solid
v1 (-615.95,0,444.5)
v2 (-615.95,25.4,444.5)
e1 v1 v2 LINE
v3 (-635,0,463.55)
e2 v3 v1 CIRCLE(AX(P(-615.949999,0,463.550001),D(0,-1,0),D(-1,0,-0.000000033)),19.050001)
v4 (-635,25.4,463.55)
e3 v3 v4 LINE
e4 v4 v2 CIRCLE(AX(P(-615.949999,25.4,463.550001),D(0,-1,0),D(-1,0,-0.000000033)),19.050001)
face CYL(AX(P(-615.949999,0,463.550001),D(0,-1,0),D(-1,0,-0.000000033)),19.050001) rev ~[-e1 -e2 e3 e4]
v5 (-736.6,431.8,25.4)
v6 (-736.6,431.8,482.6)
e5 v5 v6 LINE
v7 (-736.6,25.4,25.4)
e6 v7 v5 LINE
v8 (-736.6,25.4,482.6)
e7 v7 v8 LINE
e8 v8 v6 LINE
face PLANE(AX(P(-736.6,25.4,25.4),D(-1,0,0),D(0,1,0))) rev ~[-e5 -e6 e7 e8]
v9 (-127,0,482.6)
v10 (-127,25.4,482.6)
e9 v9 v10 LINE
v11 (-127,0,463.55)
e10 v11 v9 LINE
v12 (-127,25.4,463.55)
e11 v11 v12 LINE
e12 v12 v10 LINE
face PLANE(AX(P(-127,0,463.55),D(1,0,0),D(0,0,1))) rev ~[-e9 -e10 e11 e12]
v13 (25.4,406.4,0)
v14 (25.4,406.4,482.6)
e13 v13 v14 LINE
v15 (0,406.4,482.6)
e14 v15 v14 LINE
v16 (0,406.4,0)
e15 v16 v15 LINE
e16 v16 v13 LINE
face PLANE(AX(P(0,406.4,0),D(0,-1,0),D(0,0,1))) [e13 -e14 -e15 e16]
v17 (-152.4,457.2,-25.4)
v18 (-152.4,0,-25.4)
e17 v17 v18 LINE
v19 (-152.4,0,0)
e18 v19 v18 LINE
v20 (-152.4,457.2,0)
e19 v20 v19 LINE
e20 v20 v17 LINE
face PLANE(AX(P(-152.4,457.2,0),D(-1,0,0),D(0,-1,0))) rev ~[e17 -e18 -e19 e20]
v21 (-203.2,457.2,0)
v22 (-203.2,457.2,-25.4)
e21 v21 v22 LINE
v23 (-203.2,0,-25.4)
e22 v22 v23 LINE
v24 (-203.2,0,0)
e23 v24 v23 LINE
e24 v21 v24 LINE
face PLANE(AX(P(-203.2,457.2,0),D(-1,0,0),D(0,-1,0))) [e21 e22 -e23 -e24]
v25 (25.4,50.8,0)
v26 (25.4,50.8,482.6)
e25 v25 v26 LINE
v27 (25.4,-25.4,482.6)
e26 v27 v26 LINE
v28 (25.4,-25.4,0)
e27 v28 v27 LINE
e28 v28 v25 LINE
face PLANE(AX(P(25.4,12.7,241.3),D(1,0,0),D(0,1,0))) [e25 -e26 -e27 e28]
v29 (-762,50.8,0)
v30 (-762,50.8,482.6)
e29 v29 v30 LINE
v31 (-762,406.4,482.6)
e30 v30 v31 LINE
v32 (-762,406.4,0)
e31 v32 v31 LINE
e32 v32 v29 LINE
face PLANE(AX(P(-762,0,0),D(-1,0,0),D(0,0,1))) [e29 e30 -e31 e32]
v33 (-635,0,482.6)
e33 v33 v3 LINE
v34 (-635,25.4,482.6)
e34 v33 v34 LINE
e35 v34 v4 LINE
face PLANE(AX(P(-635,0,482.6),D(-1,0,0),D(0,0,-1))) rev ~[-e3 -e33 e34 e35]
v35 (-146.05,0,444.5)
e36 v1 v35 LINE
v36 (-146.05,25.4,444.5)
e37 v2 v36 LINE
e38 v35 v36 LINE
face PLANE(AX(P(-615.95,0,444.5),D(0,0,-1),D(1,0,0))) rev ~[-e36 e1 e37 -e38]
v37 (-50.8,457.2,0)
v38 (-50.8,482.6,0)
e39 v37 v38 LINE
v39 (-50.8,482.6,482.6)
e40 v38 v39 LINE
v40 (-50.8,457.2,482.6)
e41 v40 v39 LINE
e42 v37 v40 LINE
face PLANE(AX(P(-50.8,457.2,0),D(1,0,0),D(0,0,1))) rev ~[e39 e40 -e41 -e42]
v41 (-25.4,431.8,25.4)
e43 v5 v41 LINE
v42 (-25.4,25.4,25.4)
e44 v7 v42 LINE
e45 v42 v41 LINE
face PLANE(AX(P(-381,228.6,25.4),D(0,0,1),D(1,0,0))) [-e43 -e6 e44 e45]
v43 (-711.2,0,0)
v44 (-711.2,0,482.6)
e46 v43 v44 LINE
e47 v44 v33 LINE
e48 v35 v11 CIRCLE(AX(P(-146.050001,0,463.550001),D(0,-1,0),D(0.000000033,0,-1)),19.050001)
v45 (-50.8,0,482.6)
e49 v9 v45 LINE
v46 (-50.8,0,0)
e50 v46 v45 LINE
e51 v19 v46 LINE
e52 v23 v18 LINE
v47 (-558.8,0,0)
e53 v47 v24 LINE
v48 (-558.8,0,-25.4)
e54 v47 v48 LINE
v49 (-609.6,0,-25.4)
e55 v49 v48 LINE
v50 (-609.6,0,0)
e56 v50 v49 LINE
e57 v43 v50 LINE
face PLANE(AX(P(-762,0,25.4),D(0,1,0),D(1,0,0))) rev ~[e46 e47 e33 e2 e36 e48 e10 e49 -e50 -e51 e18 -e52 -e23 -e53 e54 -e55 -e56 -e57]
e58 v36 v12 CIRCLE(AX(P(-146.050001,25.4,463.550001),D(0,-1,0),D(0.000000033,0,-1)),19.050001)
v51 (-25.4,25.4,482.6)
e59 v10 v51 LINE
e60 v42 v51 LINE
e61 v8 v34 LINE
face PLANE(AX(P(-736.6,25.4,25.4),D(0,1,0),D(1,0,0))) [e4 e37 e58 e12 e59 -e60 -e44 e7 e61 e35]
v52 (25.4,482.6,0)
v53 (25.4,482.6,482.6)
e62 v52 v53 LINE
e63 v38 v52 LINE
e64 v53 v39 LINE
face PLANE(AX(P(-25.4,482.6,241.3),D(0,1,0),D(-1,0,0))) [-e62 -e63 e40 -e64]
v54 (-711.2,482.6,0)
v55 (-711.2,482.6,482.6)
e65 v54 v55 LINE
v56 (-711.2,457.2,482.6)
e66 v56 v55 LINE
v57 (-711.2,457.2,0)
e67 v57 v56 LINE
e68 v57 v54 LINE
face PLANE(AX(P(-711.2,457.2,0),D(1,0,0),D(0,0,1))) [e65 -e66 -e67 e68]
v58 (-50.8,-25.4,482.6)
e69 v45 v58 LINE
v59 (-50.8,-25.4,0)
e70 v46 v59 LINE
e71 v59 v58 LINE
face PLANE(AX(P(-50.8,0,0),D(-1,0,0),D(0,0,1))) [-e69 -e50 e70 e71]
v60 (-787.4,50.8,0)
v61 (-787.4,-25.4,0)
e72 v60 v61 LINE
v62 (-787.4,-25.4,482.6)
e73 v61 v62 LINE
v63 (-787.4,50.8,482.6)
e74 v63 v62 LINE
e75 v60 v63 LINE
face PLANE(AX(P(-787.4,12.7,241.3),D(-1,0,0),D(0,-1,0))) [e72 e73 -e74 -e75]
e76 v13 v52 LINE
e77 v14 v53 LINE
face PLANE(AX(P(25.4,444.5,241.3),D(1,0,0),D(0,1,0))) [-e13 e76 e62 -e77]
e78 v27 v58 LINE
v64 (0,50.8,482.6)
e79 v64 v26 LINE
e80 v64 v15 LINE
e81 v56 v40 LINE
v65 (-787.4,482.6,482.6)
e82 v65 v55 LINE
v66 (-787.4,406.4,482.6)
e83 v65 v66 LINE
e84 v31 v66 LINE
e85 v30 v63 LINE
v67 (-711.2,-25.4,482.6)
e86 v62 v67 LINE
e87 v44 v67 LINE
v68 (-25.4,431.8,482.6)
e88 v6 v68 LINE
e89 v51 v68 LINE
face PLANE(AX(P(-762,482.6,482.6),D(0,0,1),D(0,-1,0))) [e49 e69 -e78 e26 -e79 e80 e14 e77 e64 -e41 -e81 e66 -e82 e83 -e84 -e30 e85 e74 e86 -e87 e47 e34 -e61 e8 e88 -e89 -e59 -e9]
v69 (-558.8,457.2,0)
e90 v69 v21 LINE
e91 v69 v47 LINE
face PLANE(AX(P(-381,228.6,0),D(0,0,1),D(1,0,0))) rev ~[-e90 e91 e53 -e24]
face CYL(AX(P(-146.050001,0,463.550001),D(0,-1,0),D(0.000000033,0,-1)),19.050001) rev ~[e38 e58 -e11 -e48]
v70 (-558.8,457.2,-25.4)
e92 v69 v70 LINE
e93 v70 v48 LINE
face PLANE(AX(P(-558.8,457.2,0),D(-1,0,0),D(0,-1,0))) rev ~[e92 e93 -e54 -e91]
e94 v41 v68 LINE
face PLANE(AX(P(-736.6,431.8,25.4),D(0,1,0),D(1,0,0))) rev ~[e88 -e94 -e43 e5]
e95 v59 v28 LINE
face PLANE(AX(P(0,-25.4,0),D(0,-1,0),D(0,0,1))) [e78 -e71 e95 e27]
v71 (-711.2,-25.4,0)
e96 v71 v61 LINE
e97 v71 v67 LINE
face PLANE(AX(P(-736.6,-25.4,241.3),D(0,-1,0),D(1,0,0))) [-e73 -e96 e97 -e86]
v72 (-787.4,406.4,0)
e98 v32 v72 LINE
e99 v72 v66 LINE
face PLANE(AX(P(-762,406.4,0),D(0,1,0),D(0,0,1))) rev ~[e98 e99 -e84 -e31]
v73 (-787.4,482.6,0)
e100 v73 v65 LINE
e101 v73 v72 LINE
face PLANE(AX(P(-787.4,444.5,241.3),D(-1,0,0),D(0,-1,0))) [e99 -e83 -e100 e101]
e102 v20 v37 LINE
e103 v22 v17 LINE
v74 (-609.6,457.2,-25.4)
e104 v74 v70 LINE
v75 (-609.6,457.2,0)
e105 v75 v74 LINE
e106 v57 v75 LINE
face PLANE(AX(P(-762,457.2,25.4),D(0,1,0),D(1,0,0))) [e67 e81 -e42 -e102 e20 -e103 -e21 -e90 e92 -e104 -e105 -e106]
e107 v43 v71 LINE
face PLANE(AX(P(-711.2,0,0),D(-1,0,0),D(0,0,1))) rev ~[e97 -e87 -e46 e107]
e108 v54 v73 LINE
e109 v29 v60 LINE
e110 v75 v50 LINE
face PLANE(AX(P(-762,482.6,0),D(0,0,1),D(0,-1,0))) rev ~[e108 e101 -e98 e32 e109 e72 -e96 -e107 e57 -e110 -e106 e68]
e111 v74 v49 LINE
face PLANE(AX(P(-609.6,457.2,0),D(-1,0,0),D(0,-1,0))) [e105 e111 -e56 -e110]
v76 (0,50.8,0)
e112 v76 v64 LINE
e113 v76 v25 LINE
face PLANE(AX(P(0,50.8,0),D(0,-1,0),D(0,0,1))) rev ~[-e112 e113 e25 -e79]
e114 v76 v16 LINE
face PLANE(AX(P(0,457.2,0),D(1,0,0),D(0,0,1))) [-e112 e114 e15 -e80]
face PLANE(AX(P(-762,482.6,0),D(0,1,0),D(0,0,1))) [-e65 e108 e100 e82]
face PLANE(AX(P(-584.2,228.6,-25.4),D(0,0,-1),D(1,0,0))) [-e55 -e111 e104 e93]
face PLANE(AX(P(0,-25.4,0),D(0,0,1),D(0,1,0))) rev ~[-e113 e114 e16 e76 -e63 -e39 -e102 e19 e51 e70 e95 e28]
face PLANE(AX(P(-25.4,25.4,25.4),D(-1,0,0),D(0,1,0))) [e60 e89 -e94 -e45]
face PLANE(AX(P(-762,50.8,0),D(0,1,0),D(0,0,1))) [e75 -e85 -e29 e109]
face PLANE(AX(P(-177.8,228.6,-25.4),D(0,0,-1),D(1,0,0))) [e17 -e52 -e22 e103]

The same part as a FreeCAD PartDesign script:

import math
import FreeCAD as App
import Part
import Sketcher
Q = App.Units.Quantity


def add_polygon(sketch, points):
    """Adds a closed chain of lines whose ends are joined by coincident constraints."""
    first, n = sketch.GeometryCount, len(points)
    for a, b in zip(points, points[1:] + points[:1]):
        sketch.addGeometry(Part.LineSegment(App.Vector(*a, 0), App.Vector(*b, 0)), False)
    for i in range(n):
        sketch.addConstraint(Sketcher.Constraint("Coincident", first + i, 2, first + (i + 1) % n, 1))

doc = App.newDocument("Part")
body = doc.addObject("PartDesign::Body", "Body")

sketch1 = doc.addObject("Sketcher::SketchObject", "Sketch")
body.addObject(sketch1)
sketch1.AttachmentSupport = (doc.XY_Plane, [""])
sketch1.MapMode = "FlatFace"
add_polygon(sketch1, [(-762, 457.2), (-762, 0), (0, 0), (0, 457.2)])
sketch1.addConstraint(Sketcher.Constraint("Vertical", 0))
sketch1.addConstraint(Sketcher.Constraint("Horizontal", 1))
sketch1.addConstraint(Sketcher.Constraint("Vertical", 2))
sketch1.addConstraint(Sketcher.Constraint("Horizontal", 3))
sketch1.addConstraint(Sketcher.Constraint("Coincident", 1, 2, -1, 1))
sketch1.addConstraint(Sketcher.Constraint("DistanceX", 1, 1, 1, 2, Q("30 in")))
sketch1.addConstraint(Sketcher.Constraint("DistanceY", 0, 2, 0, 1, Q("18 in")))
pad1 = doc.addObject("PartDesign::Pad", "Pad")
body.addObject(pad1)
pad1.Profile = sketch1
pad1.Length = Q("1 in")

sketch2 = doc.addObject("Sketcher::SketchObject", "Sketch001")
body.addObject(sketch2)
sketch2.AttachmentSupport = (doc.XY_Plane, [""])
sketch2.MapMode = "FlatFace"
add_polygon(sketch2, [(-609.6, 0), (-609.6, 457.2), (-558.8, 457.2), (-558.8, 0)])
add_polygon(sketch2, [(-203.2, 0), (-203.2, 457.2), (-152.4, 457.2), (-152.4, 0)])
sketch2.addConstraint(Sketcher.Constraint("Vertical", 0))
sketch2.addConstraint(Sketcher.Constraint("Horizontal", 1))
sketch2.addConstraint(Sketcher.Constraint("Vertical", 2))
sketch2.addConstraint(Sketcher.Constraint("Horizontal", 3))
sketch2.addConstraint(Sketcher.Constraint("Vertical", 4))
sketch2.addConstraint(Sketcher.Constraint("Horizontal", 5))
sketch2.addConstraint(Sketcher.Constraint("Vertical", 6))
sketch2.addConstraint(Sketcher.Constraint("Horizontal", 7))
sketch2.addConstraint(Sketcher.Constraint("PointOnObject", 2, 2, -1))
sketch2.addConstraint(Sketcher.Constraint("PointOnObject", 6, 2, -1))
sketch2.addConstraint(Sketcher.Constraint("Horizontal", 1, 2, 4, 2))
sketch2.addConstraint(Sketcher.Constraint("Equal", 3, 5))
sketch2.addConstraint(Sketcher.Constraint("DistanceX", 1, 1, 1, 2, Q("2 in")))
sketch2.addConstraint(Sketcher.Constraint("DistanceY", 0, 1, 0, 2, Q("18 in")))
sketch2.addConstraint(Sketcher.Constraint("DistanceX", 0, 2, -1, 1, Q("24 in")))
sketch2.addConstraint(Sketcher.Constraint("DistanceX", 4, 2, -1, 1, Q("8 in")))
pad2 = doc.addObject("PartDesign::Pad", "Pad001")
body.addObject(pad2)
pad2.Profile = sketch2
pad2.Length = Q("1 in")
pad2.Reversed = True

sketch3 = doc.addObject("Sketcher::SketchObject", "Sketch002")
body.addObject(sketch3)
sketch3.AttachmentSupport = (doc.XY_Plane, [""])
sketch3.MapMode = "FlatFace"
sketch3.AttachmentOffset = App.Placement(App.Vector(0, 0, 1 * 25.4), App.Rotation())
add_polygon(sketch3, [(-762, 457.2), (-762, 0), (0, 0), (0, 457.2)])
add_polygon(sketch3, [(-25.4, 25.4), (-736.6, 25.4), (-736.6, 431.8), (-25.4, 431.8)])
sketch3.addConstraint(Sketcher.Constraint("Vertical", 0))
sketch3.addConstraint(Sketcher.Constraint("Horizontal", 1))
sketch3.addConstraint(Sketcher.Constraint("Vertical", 2))
sketch3.addConstraint(Sketcher.Constraint("Horizontal", 3))
sketch3.addConstraint(Sketcher.Constraint("Horizontal", 4))
sketch3.addConstraint(Sketcher.Constraint("Vertical", 5))
sketch3.addConstraint(Sketcher.Constraint("Horizontal", 6))
sketch3.addConstraint(Sketcher.Constraint("Vertical", 7))
sketch3.addConstraint(Sketcher.Constraint("Coincident", 1, 2, -1, 1))
sketch3.addConstraint(Sketcher.Constraint("DistanceX", 1, 1, 1, 2, Q("30 in")))
sketch3.addConstraint(Sketcher.Constraint("DistanceX", 4, 2, 4, 1, Q("28 in")))
sketch3.addConstraint(Sketcher.Constraint("DistanceY", 0, 2, 0, 1, Q("18 in")))
sketch3.addConstraint(Sketcher.Constraint("DistanceY", 5, 1, 5, 2, Q("16 in")))
sketch3.addConstraint(Sketcher.Constraint("DistanceX", 4, 2, -1, 1, Q("29 in")))
sketch3.addConstraint(Sketcher.Constraint("DistanceY", -1, 1, 4, 2, Q("1 in")))
pad3 = doc.addObject("PartDesign::Pad", "Pad002")
body.addObject(pad3)
pad3.Profile = sketch3
pad3.Length = Q("18 in")

sketch4 = doc.addObject("Sketcher::SketchObject", "Sketch003")
body.addObject(sketch4)
sketch4.AttachmentSupport = (doc.XZ_Plane, [""])
sketch4.MapMode = "FlatFace"
sketch4.AttachmentOffset = App.Placement(App.Vector(0, 0, -18 * 25.4), App.Rotation())
add_polygon(sketch4, [(0, 482.6), (0, 0), (-50.8, 0), (-50.8, 482.6)])
add_polygon(sketch4, [(-711.2, 482.6), (-711.2, 0), (-762, 0), (-762, 482.6)])
sketch4.addConstraint(Sketcher.Constraint("Vertical", 0))
sketch4.addConstraint(Sketcher.Constraint("Horizontal", 1))
sketch4.addConstraint(Sketcher.Constraint("Vertical", 2))
sketch4.addConstraint(Sketcher.Constraint("Horizontal", 3))
sketch4.addConstraint(Sketcher.Constraint("Vertical", 4))
sketch4.addConstraint(Sketcher.Constraint("Horizontal", 5))
sketch4.addConstraint(Sketcher.Constraint("Vertical", 6))
sketch4.addConstraint(Sketcher.Constraint("Horizontal", 7))
sketch4.addConstraint(Sketcher.Constraint("Coincident", 0, 2, -1, 1))
sketch4.addConstraint(Sketcher.Constraint("PointOnObject", 4, 2, -1))
sketch4.addConstraint(Sketcher.Constraint("Horizontal", 3, 2, 6, 2))
sketch4.addConstraint(Sketcher.Constraint("Equal", 3, 5))
sketch4.addConstraint(Sketcher.Constraint("DistanceX", 1, 2, 1, 1, Q("2 in")))
sketch4.addConstraint(Sketcher.Constraint("DistanceY", 0, 2, 0, 1, Q("19 in")))
sketch4.addConstraint(Sketcher.Constraint("DistanceX", 4, 2, -1, 1, Q("28 in")))
pad4 = doc.addObject("PartDesign::Pad", "Pad003")
body.addObject(pad4)
pad4.Profile = sketch4
pad4.Length = Q("1 in")
pad4.Reversed = True

sketch5 = doc.addObject("Sketcher::SketchObject", "Sketch004")
body.addObject(sketch5)
sketch5.AttachmentSupport = (doc.XZ_Plane, [""])
sketch5.MapMode = "FlatFace"
add_polygon(sketch5, [(-762, 482.6), (-762, 0), (-711.2, 0), (-711.2, 482.6)])
add_polygon(sketch5, [(-50.8, 482.6), (-50.8, 0), (0, 0), (0, 482.6)])
sketch5.addConstraint(Sketcher.Constraint("Vertical", 0))
sketch5.addConstraint(Sketcher.Constraint("Horizontal", 1))
sketch5.addConstraint(Sketcher.Constraint("Vertical", 2))
sketch5.addConstraint(Sketcher.Constraint("Horizontal", 3))
sketch5.addConstraint(Sketcher.Constraint("Vertical", 4))
sketch5.addConstraint(Sketcher.Constraint("Horizontal", 5))
sketch5.addConstraint(Sketcher.Constraint("Vertical", 6))
sketch5.addConstraint(Sketcher.Constraint("Horizontal", 7))
sketch5.addConstraint(Sketcher.Constraint("Coincident", 5, 2, -1, 1))
sketch5.addConstraint(Sketcher.Constraint("PointOnObject", 0, 2, -1))
sketch5.addConstraint(Sketcher.Constraint("Horizontal", 3, 2, 6, 2))
sketch5.addConstraint(Sketcher.Constraint("Equal", 3, 5))
sketch5.addConstraint(Sketcher.Constraint("DistanceX", 1, 1, 1, 2, Q("2 in")))
sketch5.addConstraint(Sketcher.Constraint("DistanceY", 0, 2, 0, 1, Q("19 in")))
sketch5.addConstraint(Sketcher.Constraint("DistanceX", 0, 2, -1, 1, Q("30 in")))
pad5 = doc.addObject("PartDesign::Pad", "Pad004")
body.addObject(pad5)
pad5.Profile = sketch5
pad5.Length = Q("1 in")

sketch6 = doc.addObject("Sketcher::SketchObject", "Sketch005")
body.addObject(sketch6)
sketch6.AttachmentSupport = (doc.YZ_Plane, [""])
sketch6.MapMode = "FlatFace"
add_polygon(sketch6, [(-25.4, 482.6), (-25.4, 0), (50.8, 0), (50.8, 482.6)])
add_polygon(sketch6, [(406.4, 482.6), (406.4, 0), (482.6, 0), (482.6, 482.6)])
sketch6.addConstraint(Sketcher.Constraint("Vertical", 0))
sketch6.addConstraint(Sketcher.Constraint("Horizontal", 1))
sketch6.addConstraint(Sketcher.Constraint("Vertical", 2))
sketch6.addConstraint(Sketcher.Constraint("Horizontal", 3))
sketch6.addConstraint(Sketcher.Constraint("Vertical", 4))
sketch6.addConstraint(Sketcher.Constraint("Horizontal", 5))
sketch6.addConstraint(Sketcher.Constraint("Vertical", 6))
sketch6.addConstraint(Sketcher.Constraint("Horizontal", 7))
sketch6.addConstraint(Sketcher.Constraint("PointOnObject", 0, 2, -1))
sketch6.addConstraint(Sketcher.Constraint("PointOnObject", 4, 2, -1))
sketch6.addConstraint(Sketcher.Constraint("Horizontal", 3, 2, 6, 2))
sketch6.addConstraint(Sketcher.Constraint("Equal", 3, 5))
sketch6.addConstraint(Sketcher.Constraint("DistanceX", 1, 1, 1, 2, Q("3 in")))
sketch6.addConstraint(Sketcher.Constraint("DistanceY", 0, 2, 0, 1, Q("19 in")))
sketch6.addConstraint(Sketcher.Constraint("DistanceX", 0, 2, -1, 1, Q("1 in")))
sketch6.addConstraint(Sketcher.Constraint("DistanceX", -1, 1, 4, 2, Q("16 in")))
pad6 = doc.addObject("PartDesign::Pad", "Pad005")
body.addObject(pad6)
pad6.Profile = sketch6
pad6.Length = Q("1 in")

sketch7 = doc.addObject("Sketcher::SketchObject", "Sketch006")
body.addObject(sketch7)
sketch7.AttachmentSupport = (doc.YZ_Plane, [""])
sketch7.MapMode = "FlatFace"
sketch7.AttachmentOffset = App.Placement(App.Vector(0, 0, -30 * 25.4), App.Rotation())
add_polygon(sketch7, [(482.6, 482.6), (482.6, 0), (406.4, 0), (406.4, 482.6)])
add_polygon(sketch7, [(50.8, 482.6), (50.8, 0), (-25.4, 0), (-25.4, 482.6)])
sketch7.addConstraint(Sketcher.Constraint("Vertical", 0))
sketch7.addConstraint(Sketcher.Constraint("Horizontal", 1))
sketch7.addConstraint(Sketcher.Constraint("Vertical", 2))
sketch7.addConstraint(Sketcher.Constraint("Horizontal", 3))
sketch7.addConstraint(Sketcher.Constraint("Vertical", 4))
sketch7.addConstraint(Sketcher.Constraint("Horizontal", 5))
sketch7.addConstraint(Sketcher.Constraint("Vertical", 6))
sketch7.addConstraint(Sketcher.Constraint("Horizontal", 7))
sketch7.addConstraint(Sketcher.Constraint("PointOnObject", 0, 2, -1))
sketch7.addConstraint(Sketcher.Constraint("PointOnObject", 4, 2, -1))
sketch7.addConstraint(Sketcher.Constraint("Horizontal", 3, 2, 6, 2))
sketch7.addConstraint(Sketcher.Constraint("Equal", 3, 5))
sketch7.addConstraint(Sketcher.Constraint("DistanceX", 1, 2, 1, 1, Q("3 in")))
sketch7.addConstraint(Sketcher.Constraint("DistanceY", 0, 2, 0, 1, Q("19 in")))
sketch7.addConstraint(Sketcher.Constraint("DistanceX", -1, 1, 0, 2, Q("19 in")))
sketch7.addConstraint(Sketcher.Constraint("DistanceX", -1, 1, 4, 2, Q("2 in")))
pad7 = doc.addObject("PartDesign::Pad", "Pad006")
body.addObject(pad7)
pad7.Profile = sketch7
pad7.Length = Q("1 in")
pad7.Reversed = True

sketch8 = doc.addObject("Sketcher::SketchObject", "Sketch007")
body.addObject(sketch8)
sketch8.AttachmentSupport = (doc.XZ_Plane, [""])
sketch8.MapMode = "FlatFace"
sketch8.addGeometry(Part.LineSegment(App.Vector(-635, 482.6, 0), App.Vector(-635, 463.55, 0)), False)
sketch8.addGeometry(Part.ArcOfCircle(Part.Circle(App.Vector(-615.949999, 463.550001, 0), App.Vector(0, 0, 1), 19.050001), math.radians(-179.999998), math.radians(-90.000002)), False)
sketch8.addGeometry(Part.LineSegment(App.Vector(-615.95, 444.5, 0), App.Vector(-146.05, 444.5, 0)), False)
sketch8.addGeometry(Part.ArcOfCircle(Part.Circle(App.Vector(-146.050001, 463.550001, 0), App.Vector(0, 0, 1), 19.050001), math.radians(-89.999998), math.radians(-0.000002)), False)
sketch8.addGeometry(Part.LineSegment(App.Vector(-127, 463.55, 0), App.Vector(-127, 482.6, 0)), False)
sketch8.addGeometry(Part.LineSegment(App.Vector(-127, 482.6, 0), App.Vector(-635, 482.6, 0)), False)
sketch8.addConstraint(Sketcher.Constraint("Tangent", 0, 2, 1, 1))
sketch8.addConstraint(Sketcher.Constraint("Tangent", 1, 2, 2, 1))
sketch8.addConstraint(Sketcher.Constraint("Tangent", 2, 2, 3, 1))
sketch8.addConstraint(Sketcher.Constraint("Tangent", 3, 2, 4, 1))
sketch8.addConstraint(Sketcher.Constraint("Coincident", 4, 2, 5, 1))
sketch8.addConstraint(Sketcher.Constraint("Coincident", 5, 2, 0, 1))
sketch8.addConstraint(Sketcher.Constraint("Vertical", 0))
sketch8.addConstraint(Sketcher.Constraint("Horizontal", 2))
sketch8.addConstraint(Sketcher.Constraint("Vertical", 4))
sketch8.addConstraint(Sketcher.Constraint("Horizontal", 5))
sketch8.addConstraint(Sketcher.Constraint("Equal", 1, 3))
sketch8.addConstraint(Sketcher.Constraint("DistanceX", 5, 2, 5, 1, Q("20 in")))
sketch8.addConstraint(Sketcher.Constraint("Radius", 1, Q("0.75 in")))
sketch8.addConstraint(Sketcher.Constraint("DistanceX", 0, 2, -1, 1, Q("25 in")))
sketch8.addConstraint(Sketcher.Constraint("DistanceY", -1, 1, 4, 2, Q("19 in")))
sketch8.addConstraint(Sketcher.Constraint("DistanceY", 0, 2, 0, 1, Q("0.75 in")))
pocket1 = doc.addObject("PartDesign::Pocket", "Pocket")
body.addObject(pocket1)
pocket1.Profile = sketch8
pocket1.Length = Q("1 in")

doc.recompute()
